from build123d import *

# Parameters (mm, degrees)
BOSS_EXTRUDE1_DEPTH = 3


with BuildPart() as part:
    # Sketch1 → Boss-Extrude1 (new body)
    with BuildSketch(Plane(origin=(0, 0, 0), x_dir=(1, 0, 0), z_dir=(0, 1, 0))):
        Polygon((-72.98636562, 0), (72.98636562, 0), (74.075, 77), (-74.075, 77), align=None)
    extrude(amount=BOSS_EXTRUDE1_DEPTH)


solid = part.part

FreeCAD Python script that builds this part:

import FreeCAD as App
import Part
import Sketcher
Q = App.Units.Quantity

doc = App.newDocument("Part")
body = doc.addObject("PartDesign::Body", "Body")

# Sketch on XZ plane
sketch1 = body.newObject("Sketcher::SketchObject", "Sketch")
sketch1.AttachmentSupport = (doc.getObject("XZ_Plane"), [""])
sketch1.MapMode = "FlatFace"
sketch1.addGeometry([
    Part.LineSegment(App.Vector(-72.986366, 0, 0), App.Vector(72.986366, 0, 0)),
    Part.LineSegment(App.Vector(72.986366, 0, 0), App.Vector(74.075, -77, 0)),
    Part.LineSegment(App.Vector(74.075, -77, 0), App.Vector(-74.075, -77, 0)),
    Part.LineSegment(App.Vector(-74.075, -77, 0), App.Vector(-72.986366, 0, 0)),
], False)
sketch1.addConstraint([
    Sketcher.Constraint("Coincident", 0, 2, 1, 1),
    Sketcher.Constraint("Coincident", 1, 2, 2, 1),
    Sketcher.Constraint("Coincident", 2, 2, 3, 1),
    Sketcher.Constraint("Coincident", 3, 2, 0, 1),
    Sketcher.Constraint("Horizontal", 0),
    Sketcher.Constraint("Horizontal", 2),
    Sketcher.Constraint("Symmetric", 0, 2, 3, 2, -1, 1),
    Sketcher.Constraint("Equal", 1, 3),
    Sketcher.Constraint("DistanceY", 1, 2, -1, 1, Q("77 mm")),
    Sketcher.Constraint("DistanceX", 2, 2, 2, 1, Q("148.15 mm")),
    Sketcher.Constraint("Angle", 1, Q("-89.19 deg")),
])
pad1 = body.newObject("PartDesign::Pad", "Pad")
pad1.Profile = sketch1
pad1.Length = 3
pad1.Reversed = True

doc.recompute()
